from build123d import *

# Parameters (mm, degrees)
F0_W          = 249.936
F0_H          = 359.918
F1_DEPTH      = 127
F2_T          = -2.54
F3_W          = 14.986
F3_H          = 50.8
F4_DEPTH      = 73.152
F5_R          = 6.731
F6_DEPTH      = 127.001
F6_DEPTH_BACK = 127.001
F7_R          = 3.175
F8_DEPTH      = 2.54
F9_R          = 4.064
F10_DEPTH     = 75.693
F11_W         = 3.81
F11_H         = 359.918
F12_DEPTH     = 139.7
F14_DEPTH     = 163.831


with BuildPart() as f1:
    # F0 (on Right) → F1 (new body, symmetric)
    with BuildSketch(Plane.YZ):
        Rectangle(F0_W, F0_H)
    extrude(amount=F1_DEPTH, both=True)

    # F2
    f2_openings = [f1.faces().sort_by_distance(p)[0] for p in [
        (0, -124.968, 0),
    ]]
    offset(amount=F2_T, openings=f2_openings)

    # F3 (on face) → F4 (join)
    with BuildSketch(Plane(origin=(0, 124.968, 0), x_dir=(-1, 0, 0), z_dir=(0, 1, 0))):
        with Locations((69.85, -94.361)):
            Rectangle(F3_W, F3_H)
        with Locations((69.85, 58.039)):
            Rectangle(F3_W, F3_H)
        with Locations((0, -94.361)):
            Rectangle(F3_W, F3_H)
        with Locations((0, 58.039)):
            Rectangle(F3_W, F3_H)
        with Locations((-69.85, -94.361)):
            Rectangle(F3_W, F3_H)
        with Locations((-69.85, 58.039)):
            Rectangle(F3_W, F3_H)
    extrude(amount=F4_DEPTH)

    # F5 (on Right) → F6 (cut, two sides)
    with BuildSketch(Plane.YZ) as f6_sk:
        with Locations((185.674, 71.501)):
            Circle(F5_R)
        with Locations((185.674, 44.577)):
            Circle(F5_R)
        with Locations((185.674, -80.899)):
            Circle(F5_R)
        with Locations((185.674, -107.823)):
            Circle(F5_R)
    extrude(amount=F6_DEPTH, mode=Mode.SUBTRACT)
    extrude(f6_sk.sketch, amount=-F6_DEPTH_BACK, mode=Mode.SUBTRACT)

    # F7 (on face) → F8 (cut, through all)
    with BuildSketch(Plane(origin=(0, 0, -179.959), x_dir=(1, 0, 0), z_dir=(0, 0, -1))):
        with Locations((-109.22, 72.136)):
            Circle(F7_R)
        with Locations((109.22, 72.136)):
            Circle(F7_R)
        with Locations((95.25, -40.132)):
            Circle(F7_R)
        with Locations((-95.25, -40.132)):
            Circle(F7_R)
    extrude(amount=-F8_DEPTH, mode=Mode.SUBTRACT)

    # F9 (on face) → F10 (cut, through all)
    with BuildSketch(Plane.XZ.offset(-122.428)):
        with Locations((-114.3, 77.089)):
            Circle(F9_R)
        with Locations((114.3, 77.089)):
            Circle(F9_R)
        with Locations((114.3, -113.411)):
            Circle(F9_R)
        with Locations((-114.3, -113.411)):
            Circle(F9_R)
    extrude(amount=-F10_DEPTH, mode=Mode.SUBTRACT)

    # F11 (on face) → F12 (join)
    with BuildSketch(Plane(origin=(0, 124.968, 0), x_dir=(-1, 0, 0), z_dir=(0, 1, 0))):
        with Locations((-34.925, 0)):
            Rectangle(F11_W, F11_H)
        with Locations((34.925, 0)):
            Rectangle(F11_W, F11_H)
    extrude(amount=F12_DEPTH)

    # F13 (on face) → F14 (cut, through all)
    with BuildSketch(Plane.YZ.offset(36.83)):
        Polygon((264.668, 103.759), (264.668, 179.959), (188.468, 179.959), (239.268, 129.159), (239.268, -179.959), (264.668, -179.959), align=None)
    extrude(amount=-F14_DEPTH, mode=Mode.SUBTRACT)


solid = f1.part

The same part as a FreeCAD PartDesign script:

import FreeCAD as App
import Part
import Sketcher
from FreeCAD import Vector
Q = App.Units.Quantity


def faces_at(feature, points):
    """Names of the faces that lie closest to the given points."""
    faces = feature.Shape.Faces
    near = lambda p: min(range(len(faces)), key=lambda i: faces[i].distToShape(Part.Vertex(*p))[0])
    return sorted({f"Face{near(p) + 1}" for p in points})


def add_polygon(sketch, points):
    """Adds a closed chain of lines whose ends are joined by coincident constraints."""
    first, n = sketch.GeometryCount, len(points)
    for a, b in zip(points, points[1:] + points[:1]):
        sketch.addGeometry(Part.LineSegment(App.Vector(*a, 0), App.Vector(*b, 0)), False)
    for i in range(n):
        sketch.addConstraint(Sketcher.Constraint("Coincident", first + i, 2, first + (i + 1) % n, 1))

doc = App.newDocument("Part")
params = doc.addObject("Spreadsheet::Sheet", "Params")
for row, (alias, value) in enumerate([
    ("sketch1_width", "9.84 in"),
    ("sketch1_height", "14.17 in"),
    ("pad1_length", "10 in"),
    ("thickness_wall", "0.1 in"),
    ("sketch2_height", "2 in"),
    ("sketch2_width", "0.59 in"),
    ("pad2_length", "2.88 in"),
    ("sketch3_diameter", "0.53 in"),
    ("sketch4_diameter", "0.25 in"),
    ("pocket2_length", "0.1 in"),
    ("sketch5_diameter", "0.32 in"),
    ("sketch6_width", "0.15 in"),
    ("sketch6_height", "14.17 in"),
    ("pad3_length", "5.5 in"),
    ("sketch7_width", "3 in"),
    ("sketch7_width2", "1 in"),
    ("sketch7_height", "12.17 in"),
], start=1):
    params.set(f"A{row}", alias)
    params.set(f"B{row}", "=" + value)
    params.setAlias(f"B{row}", alias)

body = doc.addObject("PartDesign::Body", "Body")

sketch1 = body.newObject("Sketcher::SketchObject", "Sketch")
sketch1.AttachmentSupport = (doc.getObject("YZ_Plane"), [""])
sketch1.MapMode = "FlatFace"
add_polygon(sketch1, [(-125, 180), (-125, -180), (125, -180), (125, 180)])
sketch1.addConstraint(Sketcher.Constraint("Vertical", 0))
sketch1.addConstraint(Sketcher.Constraint("Horizontal", 1))
sketch1.addConstraint(Sketcher.Constraint("Vertical", 2))
sketch1.addConstraint(Sketcher.Constraint("Horizontal", 3))
sketch1.addConstraint(Sketcher.Constraint("Symmetric", 0, 2, 2, 2, -1, 1))
sketch1.addConstraint(Sketcher.Constraint("DistanceX", 1, 1, 1, 2, Q("9.84 in")))
sketch1.addConstraint(Sketcher.Constraint("DistanceY", 0, 2, 0, 1, Q("14.17 in")))
sketch1.setExpression("Constraints[9]", "Params.sketch1_width")
sketch1.setExpression("Constraints[10]", "Params.sketch1_height")
pad1 = body.newObject("PartDesign::Pad", "Pad")
pad1.Profile = sketch1
pad1.setExpression("Length", "Params.pad1_length")
pad1.Midplane = True
doc.recompute()

thickness = body.newObject("PartDesign::Thickness", "Thickness")
thickness.Base = (pad1, faces_at(pad1, [(0, -124.968, 0)]))
thickness.setExpression("Value", "Params.thickness_wall")
thickness.Reversed = True
thickness.Join = "Arc"

sketch2 = body.newObject("Sketcher::SketchObject", "Sketch001")
sketch2.AttachmentSupport = (doc.getObject("XZ_Plane"), [""])
sketch2.MapMode = "FlatFace"
sketch2.AttachmentOffset = App.Placement(Vector(0, 0, -4.92 * 25.4), App.Rotation())
add_polygon(sketch2, [(-62, -69), (-62, -120), (-77, -120), (-77, -69)])
add_polygon(sketch2, [(-62, 83), (-62, 33), (-77, 33), (-77, 83)])
add_polygon(sketch2, [(7, -69), (7, -120), (-7, -120), (-7, -69)])
add_polygon(sketch2, [(7, 83), (7, 33), (-7, 33), (-7, 83)])
add_polygon(sketch2, [(77, -69), (77, -120), (62, -120), (62, -69)])
add_polygon(sketch2, [(77, 83), (77, 33), (62, 33), (62, 83)])
sketch2.addConstraint(Sketcher.Constraint("Vertical", 0))
sketch2.addConstraint(Sketcher.Constraint("Horizontal", 1))
sketch2.addConstraint(Sketcher.Constraint("Vertical", 2))
sketch2.addConstraint(Sketcher.Constraint("Horizontal", 3))
sketch2.addConstraint(Sketcher.Constraint("Vertical", 4))
sketch2.addConstraint(Sketcher.Constraint("Horizontal", 5))
sketch2.addConstraint(Sketcher.Constraint("Vertical", 6))
sketch2.addConstraint(Sketcher.Constraint("Horizontal", 7))
sketch2.addConstraint(Sketcher.Constraint("Vertical", 8))
sketch2.addConstraint(Sketcher.Constraint("Horizontal", 9))
sketch2.addConstraint(Sketcher.Constraint("Vertical", 10))
sketch2.addConstraint(Sketcher.Constraint("Horizontal", 11))
sketch2.addConstraint(Sketcher.Constraint("Vertical", 12))
sketch2.addConstraint(Sketcher.Constraint("Horizontal", 13))
sketch2.addConstraint(Sketcher.Constraint("Vertical", 14))
sketch2.addConstraint(Sketcher.Constraint("Horizontal", 15))
sketch2.addConstraint(Sketcher.Constraint("Vertical", 16))
sketch2.addConstraint(Sketcher.Constraint("Horizontal", 17))
sketch2.addConstraint(Sketcher.Constraint("Vertical", 18))
sketch2.addConstraint(Sketcher.Constraint("Horizontal", 19))
sketch2.addConstraint(Sketcher.Constraint("Vertical", 20))
sketch2.addConstraint(Sketcher.Constraint("Horizontal", 21))
sketch2.addConstraint(Sketcher.Constraint("Vertical", 22))
sketch2.addConstraint(Sketcher.Constraint("Horizontal", 23))
sketch2.addConstraint(Sketcher.Constraint("Symmetric", 1, 2, 16, 2, -2))
sketch2.addConstraint(Sketcher.Constraint("Symmetric", 3, 2, 18, 2, -2))
sketch2.addConstraint(Sketcher.Constraint("Symmetric", 5, 2, 20, 2, -2))
sketch2.addConstraint(Sketcher.Constraint("Symmetric", 7, 2, 22, 2, -2))
sketch2.addConstraint(Sketcher.Constraint("Horizontal", 1, 2, 8, 2))
sketch2.addConstraint(Sketcher.Constraint("Horizontal", 3, 2, 10, 2))
sketch2.addConstraint(Sketcher.Constraint("Horizontal", 5, 2, 12, 2))
sketch2.addConstraint(Sketcher.Constraint("Horizontal", 7, 2, 14, 2))
sketch2.addConstraint(Sketcher.Constraint("Vertical", 3, 2, 4, 2))
sketch2.addConstraint(Sketcher.Constraint("Vertical", 2, 2, 5, 2))
sketch2.addConstraint(Sketcher.Constraint("Vertical", 11, 2, 12, 2))
sketch2.addConstraint(Sketcher.Constraint("Vertical", 10, 2, 13, 2))
sketch2.addConstraint(Sketcher.Constraint("Equal", 7, 9))
sketch2.addConstraint(Sketcher.Constraint("Equal", 2, 4))
sketch2.addConstraint(Sketcher.Constraint("DistanceY", 0, 2, 0, 1, Q("2 in")))
sketch2.addConstraint(Sketcher.Constraint("DistanceY", 3, 2, 4, 2, Q("4 in")))
sketch2.addConstraint(Sketcher.Constraint("DistanceX", 1, 2, 1, 1, Q("0.59 in")))
sketch2.addConstraint(Sketcher.Constraint("DistanceX", 0, 2, 16, 2, Q("5.5 in")))
sketch2.addConstraint(Sketcher.Constraint("DistanceX", 0, 2, 8, 2, Q("2.75 in")))
sketch2.addConstraint(Sketcher.Constraint("DistanceY", 0, 2, -1, 1, Q("4.715 in")))
sketch2.setExpression("Constraints[62]", "Params.sketch2_height")
sketch2.setExpression("Constraints[64]", "Params.sketch2_width")
pad2 = body.newObject("PartDesign::Pad", "Pad001")
pad2.Profile = sketch2
pad2.setExpression("Length", "Params.pad2_length")
pad2.Reversed = True

sketch3 = body.newObject("Sketcher::SketchObject", "Sketch002")
sketch3.AttachmentSupport = (doc.getObject("YZ_Plane"), [""])
sketch3.MapMode = "FlatFace"
sketch3.addGeometry(Part.Circle(Vector(186, 72, 0), Vector(0, 0, 1), 7), False)
sketch3.addGeometry(Part.Circle(Vector(186, 45, 0), Vector(0, 0, 1), 7), False)
sketch3.addGeometry(Part.Circle(Vector(186, -81, 0), Vector(0, 0, 1), 7), False)
sketch3.addGeometry(Part.Circle(Vector(186, -108, 0), Vector(0, 0, 1), 7), False)
sketch3.addConstraint(Sketcher.Constraint("Equal", 0, 1))
sketch3.addConstraint(Sketcher.Constraint("Equal", 1, 2))
sketch3.addConstraint(Sketcher.Constraint("Equal", 2, 3))
sketch3.addConstraint(Sketcher.Constraint("Vertical", 0, 3, 1, 3))
sketch3.addConstraint(Sketcher.Constraint("Vertical", 1, 3, 2, 3))
sketch3.addConstraint(Sketcher.Constraint("Vertical", 2, 3, 3, 3))
sketch3.addConstraint(Sketcher.Constraint("Diameter", 0, Q("0.53 in")))
sketch3.addConstraint(Sketcher.Constraint("DistanceY", 2, 3, 0, 3, Q("6 in")))
sketch3.addConstraint(Sketcher.Constraint("DistanceY", 3, 3, 1, 3, Q("6 in")))
sketch3.addConstraint(Sketcher.Constraint("DistanceX", -1, 1, 0, 3, Q("7.31 in")))
sketch3.addConstraint(Sketcher.Constraint("DistanceY", 1, 3, 0, 3, Q("1.06 in")))
sketch3.addConstraint(Sketcher.Constraint("DistanceY", -1, 1, 0, 3, Q("2.815 in")))
sketch3.setExpression("Constraints[6]", "Params.sketch3_diameter")
pocket1 = body.newObject("PartDesign::Pocket", "Pocket")
pocket1.Profile = sketch3
pocket1.Type = "ThroughAll"
pocket1.Midplane = True

sketch4 = body.newObject("Sketcher::SketchObject", "Sketch003")
sketch4.AttachmentSupport = (doc.getObject("XY_Plane"), [""])
sketch4.MapMode = "FlatFace"
sketch4.AttachmentOffset = App.Placement(Vector(0, 0, -7.085 * 25.4), App.Rotation())
sketch4.addGeometry(Part.Circle(Vector(-109.2, -72.1, 0), Vector(0, 0, 1), 3.2), False)
sketch4.addGeometry(Part.Circle(Vector(109.2, -72.1, 0), Vector(0, 0, 1), 3.2), False)
sketch4.addGeometry(Part.Circle(Vector(95.2, 40.1, 0), Vector(0, 0, 1), 3.2), False)
sketch4.addGeometry(Part.Circle(Vector(-95.2, 40.1, 0), Vector(0, 0, 1), 3.2), False)
sketch4.addConstraint(Sketcher.Constraint("Equal", 0, 1))
sketch4.addConstraint(Sketcher.Constraint("Equal", 1, 2))
sketch4.addConstraint(Sketcher.Constraint("Equal", 2, 3))
sketch4.addConstraint(Sketcher.Constraint("Symmetric", 0, 3, 1, 3, -2))
sketch4.addConstraint(Sketcher.Constraint("Symmetric", 2, 3, 3, 3, -2))
sketch4.addConstraint(Sketcher.Constraint("Diameter", 0, Q("0.25 in")))
sketch4.addConstraint(Sketcher.Constraint("DistanceX", 0, 3, -1, 1, Q("4.3 in")))
sketch4.addConstraint(Sketcher.Constraint("DistanceX", 3, 3, 2, 3, Q("7.5 in")))
sketch4.addConstraint(Sketcher.Constraint("DistanceY", 0, 3, -1, 1, Q("2.84 in")))
sketch4.addConstraint(Sketcher.Constraint("DistanceY", -1, 1, 2, 3, Q("1.58 in")))
sketch4.setExpression("Constraints[5]", "Params.sketch4_diameter")
pocket2 = body.newObject("PartDesign::Pocket", "Pocket001")
pocket2.Profile = sketch4
pocket2.setExpression("Length", "Params.pocket2_length")
pocket2.Reversed = True

sketch5 = body.newObject("Sketcher::SketchObject", "Sketch004")
sketch5.AttachmentSupport = (doc.getObject("XZ_Plane"), [""])
sketch5.MapMode = "FlatFace"
sketch5.AttachmentOffset = App.Placement(Vector(0, 0, -4.82 * 25.4), App.Rotation())
sketch5.addGeometry(Part.Circle(Vector(-114.3, 77.1, 0), Vector(0, 0, 1), 4.1), False)
sketch5.addGeometry(Part.Circle(Vector(114.3, 77.1, 0), Vector(0, 0, 1), 4.1), False)
sketch5.addGeometry(Part.Circle(Vector(114.3, -113.4, 0), Vector(0, 0, 1), 4.1), False)
sketch5.addGeometry(Part.Circle(Vector(-114.3, -113.4, 0), Vector(0, 0, 1), 4.1), False)
sketch5.addConstraint(Sketcher.Constraint("Equal", 0, 1))
sketch5.addConstraint(Sketcher.Constraint("Equal", 1, 2))
sketch5.addConstraint(Sketcher.Constraint("Equal", 2, 3))
sketch5.addConstraint(Sketcher.Constraint("Symmetric", 0, 3, 1, 3, -2))
sketch5.addConstraint(Sketcher.Constraint("Symmetric", 2, 3, 3, 3, -2))
sketch5.addConstraint(Sketcher.Constraint("Vertical", 1, 3, 2, 3))
sketch5.addConstraint(Sketcher.Constraint("Diameter", 0, Q("0.32 in")))
sketch5.addConstraint(Sketcher.Constraint("DistanceX", 0, 3, 1, 3, Q("9 in")))
sketch5.addConstraint(Sketcher.Constraint("DistanceY", 2, 3, 1, 3, Q("7.5 in")))
sketch5.addConstraint(Sketcher.Constraint("DistanceY", -1, 1, 0, 3, Q("3.035 in")))
sketch5.setExpression("Constraints[6]", "Params.sketch5_diameter")
pocket3 = body.newObject("PartDesign::Pocket", "Pocket002")
pocket3.Profile = sketch5
pocket3.Type = "ThroughAll"

sketch6 = body.newObject("Sketcher::SketchObject", "Sketch005")
sketch6.AttachmentSupport = (doc.getObject("XZ_Plane"), [""])
sketch6.MapMode = "FlatFace"
sketch6.AttachmentOffset = App.Placement(Vector(0, 0, -4.92 * 25.4), App.Rotation())
add_polygon(sketch6, [(36.8, 180), (36.8, -180), (33, -180), (33, 180)])
add_polygon(sketch6, [(-33, 180), (-33, -180), (-36.8, -180), (-36.8, 180)])
sketch6.addConstraint(Sketcher.Constraint("Vertical", 0))
sketch6.addConstraint(Sketcher.Constraint("Horizontal", 1))
sketch6.addConstraint(Sketcher.Constraint("Vertical", 2))
sketch6.addConstraint(Sketcher.Constraint("Horizontal", 3))
sketch6.addConstraint(Sketcher.Constraint("Vertical", 4))
sketch6.addConstraint(Sketcher.Constraint("Horizontal", 5))
sketch6.addConstraint(Sketcher.Constraint("Vertical", 6))
sketch6.addConstraint(Sketcher.Constraint("Horizontal", 7))
sketch6.addConstraint(Sketcher.Constraint("Symmetric", 2, 2, 4, 2, -1, 1))
sketch6.addConstraint(Sketcher.Constraint("Symmetric", 0, 2, 6, 2, -1, 1))
sketch6.addConstraint(Sketcher.Constraint("Horizontal", 1, 2, 4, 2))
sketch6.addConstraint(Sketcher.Constraint("DistanceX", 1, 2, 1, 1, Q("0.15 in")))
sketch6.addConstraint(Sketcher.Constraint("DistanceY", 0, 2, 0, 1, Q("14.17 in")))
sketch6.addConstraint(Sketcher.Constraint("DistanceX", -1, 1, 1, 2, Q("1.3 in")))
sketch6.setExpression("Constraints[19]", "Params.sketch6_width")
sketch6.setExpression("Constraints[20]", "Params.sketch6_height")
pad3 = body.newObject("PartDesign::Pad", "Pad002")
pad3.Profile = sketch6
pad3.setExpression("Length", "Params.pad3_length")
pad3.Reversed = True

sketch7 = body.newObject("Sketcher::SketchObject", "Sketch006")
sketch7.AttachmentSupport = (doc.getObject("YZ_Plane"), [""])
sketch7.MapMode = "FlatFace"
sketch7.AttachmentOffset = App.Placement(Vector(0, 0, 1.45 * 25.4), App.Rotation())
add_polygon(sketch7, [(265, 180), (188, 180), (239, 129), (239, -180), (265, -180)])
sketch7.addConstraint(Sketcher.Constraint("Horizontal", 0))
sketch7.addConstraint(Sketcher.Constraint("Vertical", 2))
sketch7.addConstraint(Sketcher.Constraint("Horizontal", 3))
sketch7.addConstraint(Sketcher.Constraint("Vertical", 4))
sketch7.addConstraint(Sketcher.Constraint("DistanceX", 0, 2, 0, 1, Q("3 in")))
sketch7.addConstraint(Sketcher.Constraint("DistanceX", 3, 1, 3, 2, Q("1 in")))
sketch7.addConstraint(Sketcher.Constraint("Angle", 1, Q("-45 deg")))
sketch7.addConstraint(Sketcher.Constraint("DistanceY", 2, 2, 2, 1, Q("12.17 in")))
sketch7.addConstraint(Sketcher.Constraint("DistanceX", -1, 1, 0, 2, Q("7.42 in")))
sketch7.addConstraint(Sketcher.Constraint("DistanceY", -1, 1, 0, 2, Q("7.085 in")))
sketch7.setExpression("Constraints[9]", "Params.sketch7_width")
sketch7.setExpression("Constraints[10]", "Params.sketch7_width2")
sketch7.setExpression("Constraints[12]", "Params.sketch7_height")
pocket4 = body.newObject("PartDesign::Pocket", "Pocket003")
pocket4.Profile = sketch7
pocket4.Type = "ThroughAll"

doc.recompute()
